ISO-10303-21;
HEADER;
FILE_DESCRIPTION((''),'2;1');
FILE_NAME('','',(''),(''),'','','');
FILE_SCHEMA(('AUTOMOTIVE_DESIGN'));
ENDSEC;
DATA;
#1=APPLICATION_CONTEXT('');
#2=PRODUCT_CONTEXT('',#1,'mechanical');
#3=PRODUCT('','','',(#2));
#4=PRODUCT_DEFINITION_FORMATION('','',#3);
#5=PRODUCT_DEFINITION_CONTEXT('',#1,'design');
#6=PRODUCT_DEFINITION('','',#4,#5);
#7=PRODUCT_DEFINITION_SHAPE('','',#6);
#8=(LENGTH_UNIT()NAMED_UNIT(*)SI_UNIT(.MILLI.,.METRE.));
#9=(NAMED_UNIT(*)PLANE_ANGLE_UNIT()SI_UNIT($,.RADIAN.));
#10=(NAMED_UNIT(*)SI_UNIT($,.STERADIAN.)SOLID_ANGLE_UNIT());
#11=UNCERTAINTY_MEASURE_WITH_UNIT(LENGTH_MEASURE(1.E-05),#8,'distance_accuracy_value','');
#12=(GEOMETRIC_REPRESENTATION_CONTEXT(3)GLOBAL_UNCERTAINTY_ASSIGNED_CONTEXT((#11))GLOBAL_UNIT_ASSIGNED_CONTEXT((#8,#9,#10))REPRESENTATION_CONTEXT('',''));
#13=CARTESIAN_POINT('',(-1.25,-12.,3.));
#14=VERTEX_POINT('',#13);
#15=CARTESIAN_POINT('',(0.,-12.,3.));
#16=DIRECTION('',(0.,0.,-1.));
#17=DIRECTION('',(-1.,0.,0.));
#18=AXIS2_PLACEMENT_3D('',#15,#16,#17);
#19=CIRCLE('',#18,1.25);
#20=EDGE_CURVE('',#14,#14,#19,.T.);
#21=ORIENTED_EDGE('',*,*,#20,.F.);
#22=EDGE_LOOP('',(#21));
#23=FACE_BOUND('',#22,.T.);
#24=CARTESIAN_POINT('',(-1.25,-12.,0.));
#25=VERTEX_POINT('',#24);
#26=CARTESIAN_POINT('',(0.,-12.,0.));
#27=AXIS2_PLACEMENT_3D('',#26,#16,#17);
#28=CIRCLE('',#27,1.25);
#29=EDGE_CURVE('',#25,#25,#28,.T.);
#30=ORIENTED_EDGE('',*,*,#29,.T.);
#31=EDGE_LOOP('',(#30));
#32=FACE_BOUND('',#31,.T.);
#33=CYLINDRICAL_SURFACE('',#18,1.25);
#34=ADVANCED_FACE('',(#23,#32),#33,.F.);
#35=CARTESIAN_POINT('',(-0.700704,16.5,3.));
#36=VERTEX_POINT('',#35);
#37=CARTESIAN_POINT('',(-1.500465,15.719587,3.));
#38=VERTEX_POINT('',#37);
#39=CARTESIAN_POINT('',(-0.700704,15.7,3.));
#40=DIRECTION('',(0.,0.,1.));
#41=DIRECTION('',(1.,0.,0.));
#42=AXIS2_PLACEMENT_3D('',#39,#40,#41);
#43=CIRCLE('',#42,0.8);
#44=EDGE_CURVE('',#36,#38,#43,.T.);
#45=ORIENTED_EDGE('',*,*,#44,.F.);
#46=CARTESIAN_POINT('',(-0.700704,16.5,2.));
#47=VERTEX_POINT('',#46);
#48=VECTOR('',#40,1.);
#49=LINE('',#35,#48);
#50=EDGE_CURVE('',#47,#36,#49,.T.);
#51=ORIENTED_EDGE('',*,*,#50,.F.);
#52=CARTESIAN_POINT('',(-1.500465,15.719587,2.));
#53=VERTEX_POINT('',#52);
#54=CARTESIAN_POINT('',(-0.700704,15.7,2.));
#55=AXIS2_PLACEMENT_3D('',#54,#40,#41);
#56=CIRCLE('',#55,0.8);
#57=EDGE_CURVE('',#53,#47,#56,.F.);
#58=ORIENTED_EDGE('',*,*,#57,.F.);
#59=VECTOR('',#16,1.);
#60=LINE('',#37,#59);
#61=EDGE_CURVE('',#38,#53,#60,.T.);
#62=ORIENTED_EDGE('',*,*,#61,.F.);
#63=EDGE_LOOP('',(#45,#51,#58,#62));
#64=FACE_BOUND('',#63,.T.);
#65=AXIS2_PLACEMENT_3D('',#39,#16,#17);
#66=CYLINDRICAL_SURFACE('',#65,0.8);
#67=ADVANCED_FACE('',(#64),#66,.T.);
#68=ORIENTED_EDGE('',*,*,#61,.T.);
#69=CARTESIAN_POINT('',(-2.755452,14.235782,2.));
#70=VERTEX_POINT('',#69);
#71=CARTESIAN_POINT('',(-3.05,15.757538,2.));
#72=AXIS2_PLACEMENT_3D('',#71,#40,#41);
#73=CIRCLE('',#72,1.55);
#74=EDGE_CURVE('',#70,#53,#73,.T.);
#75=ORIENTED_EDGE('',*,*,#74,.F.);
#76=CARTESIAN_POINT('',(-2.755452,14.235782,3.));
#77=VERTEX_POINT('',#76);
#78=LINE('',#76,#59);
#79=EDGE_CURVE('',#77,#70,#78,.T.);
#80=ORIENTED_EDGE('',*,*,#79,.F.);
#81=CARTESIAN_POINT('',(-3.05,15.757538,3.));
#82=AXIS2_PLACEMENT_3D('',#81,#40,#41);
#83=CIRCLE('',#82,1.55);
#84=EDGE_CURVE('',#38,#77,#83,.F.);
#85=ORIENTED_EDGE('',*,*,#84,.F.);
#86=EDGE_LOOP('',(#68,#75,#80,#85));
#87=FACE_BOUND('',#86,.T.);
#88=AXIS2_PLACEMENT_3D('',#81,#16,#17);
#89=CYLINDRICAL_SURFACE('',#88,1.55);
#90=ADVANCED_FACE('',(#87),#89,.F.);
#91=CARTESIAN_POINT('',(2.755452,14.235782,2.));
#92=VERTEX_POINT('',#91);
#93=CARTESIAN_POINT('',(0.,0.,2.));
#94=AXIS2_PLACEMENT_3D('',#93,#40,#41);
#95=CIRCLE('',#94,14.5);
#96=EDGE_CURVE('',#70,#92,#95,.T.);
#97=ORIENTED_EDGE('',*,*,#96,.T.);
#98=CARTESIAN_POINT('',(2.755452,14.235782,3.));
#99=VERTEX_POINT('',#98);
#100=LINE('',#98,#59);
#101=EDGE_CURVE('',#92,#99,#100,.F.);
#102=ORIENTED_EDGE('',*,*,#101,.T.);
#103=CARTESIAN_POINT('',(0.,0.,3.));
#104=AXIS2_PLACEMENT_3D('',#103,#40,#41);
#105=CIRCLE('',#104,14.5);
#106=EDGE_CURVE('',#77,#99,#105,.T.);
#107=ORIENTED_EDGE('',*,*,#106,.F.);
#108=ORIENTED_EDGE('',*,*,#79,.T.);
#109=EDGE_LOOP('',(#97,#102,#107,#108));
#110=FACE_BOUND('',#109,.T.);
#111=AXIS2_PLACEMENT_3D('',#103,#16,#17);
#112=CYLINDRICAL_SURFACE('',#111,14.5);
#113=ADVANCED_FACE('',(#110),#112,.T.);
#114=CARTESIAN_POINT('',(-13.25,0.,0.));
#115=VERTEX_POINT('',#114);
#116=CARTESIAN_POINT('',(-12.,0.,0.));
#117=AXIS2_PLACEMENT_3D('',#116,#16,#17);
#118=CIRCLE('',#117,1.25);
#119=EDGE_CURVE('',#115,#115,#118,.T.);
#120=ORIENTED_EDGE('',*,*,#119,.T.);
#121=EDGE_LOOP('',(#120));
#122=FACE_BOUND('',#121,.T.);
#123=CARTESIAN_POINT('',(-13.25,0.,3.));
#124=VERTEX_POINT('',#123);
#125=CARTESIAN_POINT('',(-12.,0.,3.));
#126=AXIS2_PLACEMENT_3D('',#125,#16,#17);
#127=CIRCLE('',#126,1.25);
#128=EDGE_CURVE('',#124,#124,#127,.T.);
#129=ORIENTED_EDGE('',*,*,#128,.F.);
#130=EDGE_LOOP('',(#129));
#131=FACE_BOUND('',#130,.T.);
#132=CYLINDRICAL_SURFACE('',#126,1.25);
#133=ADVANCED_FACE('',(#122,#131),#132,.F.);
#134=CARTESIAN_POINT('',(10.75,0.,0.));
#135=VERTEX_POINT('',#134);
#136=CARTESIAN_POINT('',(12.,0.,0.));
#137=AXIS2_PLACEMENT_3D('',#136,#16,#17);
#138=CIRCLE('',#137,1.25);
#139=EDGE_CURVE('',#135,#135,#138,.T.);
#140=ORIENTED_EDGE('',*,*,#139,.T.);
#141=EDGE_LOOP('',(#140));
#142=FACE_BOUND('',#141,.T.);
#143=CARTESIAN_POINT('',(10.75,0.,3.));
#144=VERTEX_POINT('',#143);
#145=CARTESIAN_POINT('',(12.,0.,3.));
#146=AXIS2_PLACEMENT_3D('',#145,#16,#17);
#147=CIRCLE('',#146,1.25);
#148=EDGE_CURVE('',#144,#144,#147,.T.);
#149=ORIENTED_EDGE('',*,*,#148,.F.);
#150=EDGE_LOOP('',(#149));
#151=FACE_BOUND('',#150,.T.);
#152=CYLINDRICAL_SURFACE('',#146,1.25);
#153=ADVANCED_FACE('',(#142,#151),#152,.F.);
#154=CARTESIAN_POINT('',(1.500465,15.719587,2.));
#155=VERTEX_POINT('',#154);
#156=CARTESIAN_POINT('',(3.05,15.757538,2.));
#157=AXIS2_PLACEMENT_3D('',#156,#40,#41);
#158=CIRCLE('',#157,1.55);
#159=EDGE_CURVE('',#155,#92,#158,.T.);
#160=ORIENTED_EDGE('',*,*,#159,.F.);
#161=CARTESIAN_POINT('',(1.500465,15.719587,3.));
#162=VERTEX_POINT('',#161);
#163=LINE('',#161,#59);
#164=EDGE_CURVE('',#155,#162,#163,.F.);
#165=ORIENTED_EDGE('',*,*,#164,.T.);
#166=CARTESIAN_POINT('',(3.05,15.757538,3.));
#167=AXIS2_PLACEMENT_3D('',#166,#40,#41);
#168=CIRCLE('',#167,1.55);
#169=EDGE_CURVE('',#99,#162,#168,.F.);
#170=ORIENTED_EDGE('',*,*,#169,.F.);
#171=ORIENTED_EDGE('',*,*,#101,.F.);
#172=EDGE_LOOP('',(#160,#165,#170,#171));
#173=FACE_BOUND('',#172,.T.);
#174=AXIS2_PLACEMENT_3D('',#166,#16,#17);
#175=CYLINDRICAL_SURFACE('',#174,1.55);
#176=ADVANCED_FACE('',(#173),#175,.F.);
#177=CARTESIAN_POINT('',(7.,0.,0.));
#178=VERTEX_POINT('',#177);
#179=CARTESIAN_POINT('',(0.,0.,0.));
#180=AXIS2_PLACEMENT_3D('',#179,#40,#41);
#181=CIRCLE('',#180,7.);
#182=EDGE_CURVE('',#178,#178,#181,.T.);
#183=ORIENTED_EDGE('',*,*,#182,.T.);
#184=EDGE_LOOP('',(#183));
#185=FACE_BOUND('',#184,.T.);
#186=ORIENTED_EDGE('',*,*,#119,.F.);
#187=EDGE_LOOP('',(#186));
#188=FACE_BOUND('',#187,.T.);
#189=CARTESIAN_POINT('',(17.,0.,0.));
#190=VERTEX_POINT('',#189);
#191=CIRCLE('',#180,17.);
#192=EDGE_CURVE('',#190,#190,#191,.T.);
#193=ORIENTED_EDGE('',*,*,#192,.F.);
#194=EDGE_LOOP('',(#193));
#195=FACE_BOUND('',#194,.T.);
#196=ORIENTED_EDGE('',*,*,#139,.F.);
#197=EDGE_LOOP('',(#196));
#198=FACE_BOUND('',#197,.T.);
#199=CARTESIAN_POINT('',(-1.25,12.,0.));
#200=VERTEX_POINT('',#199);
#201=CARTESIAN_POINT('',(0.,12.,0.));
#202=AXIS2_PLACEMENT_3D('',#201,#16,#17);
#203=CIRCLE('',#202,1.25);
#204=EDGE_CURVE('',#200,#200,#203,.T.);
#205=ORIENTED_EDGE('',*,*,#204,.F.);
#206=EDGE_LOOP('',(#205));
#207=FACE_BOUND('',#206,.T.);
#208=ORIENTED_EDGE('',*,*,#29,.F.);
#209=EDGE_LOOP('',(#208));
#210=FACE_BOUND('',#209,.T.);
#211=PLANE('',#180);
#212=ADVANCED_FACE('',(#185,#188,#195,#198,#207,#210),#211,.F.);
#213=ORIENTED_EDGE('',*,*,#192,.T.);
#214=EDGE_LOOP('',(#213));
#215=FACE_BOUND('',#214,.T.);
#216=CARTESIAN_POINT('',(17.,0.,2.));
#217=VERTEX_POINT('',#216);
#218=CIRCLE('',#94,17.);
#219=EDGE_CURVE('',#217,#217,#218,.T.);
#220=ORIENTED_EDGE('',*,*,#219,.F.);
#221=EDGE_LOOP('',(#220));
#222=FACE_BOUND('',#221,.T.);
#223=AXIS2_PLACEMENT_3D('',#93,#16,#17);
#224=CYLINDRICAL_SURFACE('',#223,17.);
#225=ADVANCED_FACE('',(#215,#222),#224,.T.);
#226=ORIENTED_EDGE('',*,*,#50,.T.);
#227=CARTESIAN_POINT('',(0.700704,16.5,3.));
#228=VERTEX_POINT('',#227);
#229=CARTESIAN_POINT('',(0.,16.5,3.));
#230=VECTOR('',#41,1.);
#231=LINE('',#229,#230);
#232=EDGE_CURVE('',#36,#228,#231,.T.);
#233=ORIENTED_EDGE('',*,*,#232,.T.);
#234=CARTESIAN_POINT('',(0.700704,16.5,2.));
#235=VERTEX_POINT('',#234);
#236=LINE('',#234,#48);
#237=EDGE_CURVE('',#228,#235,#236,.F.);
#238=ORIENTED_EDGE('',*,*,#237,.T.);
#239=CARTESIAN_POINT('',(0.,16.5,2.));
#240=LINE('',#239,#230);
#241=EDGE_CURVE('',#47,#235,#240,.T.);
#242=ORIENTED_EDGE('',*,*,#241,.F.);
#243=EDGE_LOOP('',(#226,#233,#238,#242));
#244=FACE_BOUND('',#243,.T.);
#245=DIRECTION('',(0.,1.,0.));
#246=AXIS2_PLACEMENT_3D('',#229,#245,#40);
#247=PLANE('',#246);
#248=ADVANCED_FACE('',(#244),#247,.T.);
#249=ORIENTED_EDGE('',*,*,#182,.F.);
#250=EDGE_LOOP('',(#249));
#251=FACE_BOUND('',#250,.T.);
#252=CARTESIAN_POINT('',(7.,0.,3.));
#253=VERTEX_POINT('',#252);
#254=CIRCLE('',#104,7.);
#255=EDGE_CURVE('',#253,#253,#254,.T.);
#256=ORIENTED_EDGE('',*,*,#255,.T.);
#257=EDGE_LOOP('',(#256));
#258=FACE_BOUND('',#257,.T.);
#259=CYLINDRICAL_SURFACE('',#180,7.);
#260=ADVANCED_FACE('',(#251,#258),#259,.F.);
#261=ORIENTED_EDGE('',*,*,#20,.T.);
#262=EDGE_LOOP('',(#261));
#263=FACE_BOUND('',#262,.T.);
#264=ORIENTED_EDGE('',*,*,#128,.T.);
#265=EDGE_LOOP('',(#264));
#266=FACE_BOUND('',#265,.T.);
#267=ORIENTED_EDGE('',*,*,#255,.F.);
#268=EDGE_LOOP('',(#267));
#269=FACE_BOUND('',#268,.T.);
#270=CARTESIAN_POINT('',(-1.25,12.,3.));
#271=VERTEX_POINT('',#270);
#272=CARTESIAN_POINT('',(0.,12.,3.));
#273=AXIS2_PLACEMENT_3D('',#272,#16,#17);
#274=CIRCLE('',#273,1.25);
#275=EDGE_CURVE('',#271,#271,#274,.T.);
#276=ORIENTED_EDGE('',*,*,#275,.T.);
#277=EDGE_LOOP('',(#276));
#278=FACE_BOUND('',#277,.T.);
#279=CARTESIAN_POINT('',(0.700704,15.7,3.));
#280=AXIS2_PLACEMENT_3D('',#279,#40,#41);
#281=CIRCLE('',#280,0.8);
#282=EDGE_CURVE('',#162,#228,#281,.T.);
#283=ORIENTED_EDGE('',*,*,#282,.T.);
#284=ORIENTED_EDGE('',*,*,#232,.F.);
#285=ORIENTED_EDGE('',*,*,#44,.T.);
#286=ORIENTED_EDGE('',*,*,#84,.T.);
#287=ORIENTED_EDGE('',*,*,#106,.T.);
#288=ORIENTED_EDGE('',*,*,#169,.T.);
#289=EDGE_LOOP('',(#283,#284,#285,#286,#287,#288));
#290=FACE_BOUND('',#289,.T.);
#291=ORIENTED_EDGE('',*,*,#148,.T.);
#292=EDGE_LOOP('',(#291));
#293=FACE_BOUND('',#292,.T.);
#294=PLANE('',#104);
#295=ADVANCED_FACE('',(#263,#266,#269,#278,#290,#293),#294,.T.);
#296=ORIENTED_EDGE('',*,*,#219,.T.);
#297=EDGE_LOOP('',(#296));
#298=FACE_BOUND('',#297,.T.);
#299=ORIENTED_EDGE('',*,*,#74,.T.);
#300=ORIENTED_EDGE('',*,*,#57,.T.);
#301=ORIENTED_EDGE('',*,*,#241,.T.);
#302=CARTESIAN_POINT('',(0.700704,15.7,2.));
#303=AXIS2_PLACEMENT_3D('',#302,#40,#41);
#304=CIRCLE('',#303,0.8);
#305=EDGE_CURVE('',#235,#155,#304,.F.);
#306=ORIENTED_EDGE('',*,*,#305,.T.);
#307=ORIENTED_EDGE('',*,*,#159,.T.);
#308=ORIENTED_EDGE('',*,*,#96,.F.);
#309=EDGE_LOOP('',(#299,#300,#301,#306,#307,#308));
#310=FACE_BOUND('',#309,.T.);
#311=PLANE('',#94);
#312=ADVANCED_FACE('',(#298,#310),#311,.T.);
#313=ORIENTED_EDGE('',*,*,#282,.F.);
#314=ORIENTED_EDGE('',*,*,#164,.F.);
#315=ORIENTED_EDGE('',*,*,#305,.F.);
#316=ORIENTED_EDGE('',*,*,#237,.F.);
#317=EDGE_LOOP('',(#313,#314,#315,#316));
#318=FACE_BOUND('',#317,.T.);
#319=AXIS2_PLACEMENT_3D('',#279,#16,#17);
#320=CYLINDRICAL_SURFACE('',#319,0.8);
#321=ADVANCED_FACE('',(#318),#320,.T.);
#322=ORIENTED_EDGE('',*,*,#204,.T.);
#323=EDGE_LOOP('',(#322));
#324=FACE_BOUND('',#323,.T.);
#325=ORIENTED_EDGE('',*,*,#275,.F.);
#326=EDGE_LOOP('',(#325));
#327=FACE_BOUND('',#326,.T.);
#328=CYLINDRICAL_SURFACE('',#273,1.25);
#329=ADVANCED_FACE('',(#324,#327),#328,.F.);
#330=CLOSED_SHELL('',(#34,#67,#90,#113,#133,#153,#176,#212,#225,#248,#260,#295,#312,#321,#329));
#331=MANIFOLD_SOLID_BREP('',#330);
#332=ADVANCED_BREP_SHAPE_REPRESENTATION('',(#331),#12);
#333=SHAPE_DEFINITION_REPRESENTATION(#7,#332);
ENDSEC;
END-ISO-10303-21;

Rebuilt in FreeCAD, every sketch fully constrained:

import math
import FreeCAD as App
import Part
import Sketcher
from FreeCAD import Vector


def edges_at(feature, points):
    """Names of the edges that pass closest to the given points."""
    edges = feature.Shape.Edges
    near = lambda p: min(range(len(edges)), key=lambda i: edges[i].distToShape(Part.Vertex(*p))[0])
    return sorted({f"Edge{near(p) + 1}" for p in points})

doc = App.newDocument("Part")
body = doc.addObject("PartDesign::Body", "Body")

# Sketch on XY plane
sketch1 = doc.addObject("Sketcher::SketchObject", "Sketch")
body.addObject(sketch1)
sketch1.AttachmentSupport = (doc.XY_Plane, [""])
sketch1.MapMode = "FlatFace"
sketch1.addGeometry(Part.Circle(Vector(0, 0, 0), Vector(0, 0, 1), 17), False)
sketch1.addConstraint(Sketcher.Constraint("Coincident", 0, 3, -1, 1))
sketch1.addConstraint(Sketcher.Constraint("Diameter", 0, 34.0))
pad1 = doc.addObject("PartDesign::Pad", "Pad")
body.addObject(pad1)
pad1.Profile = sketch1
pad1.Length = 2

# Sketch on XY plane
sketch2 = doc.addObject("Sketcher::SketchObject", "Sketch001")
body.addObject(sketch2)
sketch2.AttachmentSupport = (doc.XY_Plane, [""])
sketch2.MapMode = "FlatFace"
sketch2.AttachmentOffset = App.Placement(Vector(0, 0, 2), App.Rotation())
sketch2.addGeometry(Part.ArcOfCircle(Part.Circle(Vector(0, 0, 0), Vector(0, 0, 1), 14.5), math.radians(96), math.radians(360)), False)
sketch2.addGeometry(Part.ArcOfCircle(Part.Circle(Vector(0, 0, 0), Vector(0, 0, 1), 14.5), math.radians(0), math.radians(84)), False)
sketch2.addGeometry(Part.LineSegment(Vector(1.5, 14.4, 0), Vector(1.5, 16.5, 0)), False)
sketch2.addGeometry(Part.LineSegment(Vector(1.5, 16.5, 0), Vector(-1.5, 16.5, 0)), False)
sketch2.addGeometry(Part.LineSegment(Vector(-1.5, 16.5, 0), Vector(-1.5, 14.4, 0)), False)
sketch2.addConstraint(Sketcher.Constraint("Tangent", 0, 2, 1, 1))
sketch2.addConstraint(Sketcher.Constraint("Coincident", 1, 2, 2, 1))
sketch2.addConstraint(Sketcher.Constraint("Coincident", 2, 2, 3, 1))
sketch2.addConstraint(Sketcher.Constraint("Coincident", 3, 2, 4, 1))
sketch2.addConstraint(Sketcher.Constraint("Coincident", 4, 2, 0, 1))
sketch2.addConstraint(Sketcher.Constraint("Vertical", 2))
sketch2.addConstraint(Sketcher.Constraint("Horizontal", 3))
sketch2.addConstraint(Sketcher.Constraint("Vertical", 4))
sketch2.addConstraint(Sketcher.Constraint("Coincident", 0, 3, -1, 1))
sketch2.addConstraint(Sketcher.Constraint("Equal", 0, 1))
sketch2.addConstraint(Sketcher.Constraint("PointOnObject", 0, 2, -1))
sketch2.addConstraint(Sketcher.Constraint("Horizontal", 1, 2, 4, 2))
sketch2.addConstraint(Sketcher.Constraint("Radius", 0, 14.5))
sketch2.addConstraint(Sketcher.Constraint("DistanceX", 3, 2, 3, 1, 3.0))
sketch2.addConstraint(Sketcher.Constraint("DistanceY", -1, 1, 2, 2, 16.5))
pad2 = doc.addObject("PartDesign::Pad", "Pad001")
body.addObject(pad2)
pad2.Profile = sketch2
pad2.Length = 1
doc.recompute()

fillet = doc.addObject("PartDesign::Fillet", "Fillet")
body.addObject(fillet)
fillet.Base = (pad2, edges_at(pad2, [(-1.5, 14.422, 2.5), (1.5, 14.422, 2.5)]))
fillet.Radius = 1.55
doc.recompute()

fillet2 = doc.addObject("PartDesign::Fillet", "Fillet001")
body.addObject(fillet2)
fillet2.Base = (fillet, edges_at(fillet, [(1.5, 16.5, 2.5), (-1.5, 16.5, 2.5)]))
fillet2.Radius = 0.8

# Sketch on XY plane
sketch3 = doc.addObject("Sketcher::SketchObject", "Sketch002")
body.addObject(sketch3)
sketch3.AttachmentSupport = (doc.XY_Plane, [""])
sketch3.MapMode = "FlatFace"
sketch3.AttachmentOffset = App.Placement(Vector(0, 0, 3), App.Rotation())
sketch3.addGeometry(Part.Circle(Vector(0, 0, 0), Vector(0, 0, 1), 7), False)
sketch3.addConstraint(Sketcher.Constraint("Coincident", 0, 3, -1, 1))
sketch3.addConstraint(Sketcher.Constraint("Diameter", 0, 14.0))
pocket1 = doc.addObject("PartDesign::Pocket", "Pocket")
body.addObject(pocket1)
pocket1.Profile = sketch3
pocket1.Type = "ThroughAll"

# Sketch on XY plane
sketch4 = doc.addObject("Sketcher::SketchObject", "Sketch003")
body.addObject(sketch4)
sketch4.AttachmentSupport = (doc.XY_Plane, [""])
sketch4.MapMode = "FlatFace"
sketch4.addGeometry(Part.Circle(Vector(0, 12, 0), Vector(0, 0, 1), 1.2), False)
sketch4.addGeometry(Part.Circle(Vector(-12, 0, 0), Vector(0, 0, 1), 1.2), False)
sketch4.addGeometry(Part.Circle(Vector(0, -12, 0), Vector(0, 0, 1), 1.2), False)
sketch4.addGeometry(Part.Circle(Vector(12, 0, 0), Vector(0, 0, 1), 1.2), False)
sketch4.addConstraint(Sketcher.Constraint("Equal", 0, 1))
sketch4.addConstraint(Sketcher.Constraint("Equal", 1, 2))
sketch4.addConstraint(Sketcher.Constraint("Equal", 2, 3))
sketch4.addConstraint(Sketcher.Constraint("Symmetric", 0, 3, 2, 3, -1, 1))
sketch4.addConstraint(Sketcher.Constraint("Symmetric", 1, 3, 3, 3, -1, 1))
sketch4.addConstraint(Sketcher.Constraint("PointOnObject", 0, 3, -2))
sketch4.addConstraint(Sketcher.Constraint("PointOnObject", 1, 3, -1))
sketch4.addConstraint(Sketcher.Constraint("Diameter", 0, 2.5))
sketch4.addConstraint(Sketcher.Constraint("DistanceY", -1, 1, 0, 3, 12.0))
sketch4.addConstraint(Sketcher.Constraint("DistanceX", 1, 3, -1, 1, 12.0))
pocket2 = doc.addObject("PartDesign::Pocket", "Pocket001")
body.addObject(pocket2)
pocket2.Profile = sketch4
pocket2.Type = "ThroughAll"
pocket2.Reversed = True

doc.recompute()
